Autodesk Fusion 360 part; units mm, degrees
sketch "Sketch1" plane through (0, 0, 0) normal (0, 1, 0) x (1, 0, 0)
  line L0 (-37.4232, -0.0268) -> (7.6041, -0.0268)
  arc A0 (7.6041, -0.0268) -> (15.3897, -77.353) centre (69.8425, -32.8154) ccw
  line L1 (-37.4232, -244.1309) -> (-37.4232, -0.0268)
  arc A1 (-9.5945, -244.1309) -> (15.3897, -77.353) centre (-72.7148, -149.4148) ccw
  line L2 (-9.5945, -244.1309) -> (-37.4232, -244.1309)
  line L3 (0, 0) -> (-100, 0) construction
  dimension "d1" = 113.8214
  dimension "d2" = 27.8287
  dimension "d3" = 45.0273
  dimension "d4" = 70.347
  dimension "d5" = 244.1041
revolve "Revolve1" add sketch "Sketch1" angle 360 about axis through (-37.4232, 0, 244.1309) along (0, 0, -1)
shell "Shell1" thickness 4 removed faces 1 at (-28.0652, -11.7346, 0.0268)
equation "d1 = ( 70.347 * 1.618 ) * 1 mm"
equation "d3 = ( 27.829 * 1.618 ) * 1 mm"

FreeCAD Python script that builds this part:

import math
import FreeCAD as App
import Part
import Sketcher

V = App.Vector
Q = App.Units.Quantity


def faces_at(feature, points):
    """Names of the faces that lie closest to the given points."""
    faces = feature.Shape.Faces
    near = lambda p: min(range(len(faces)), key=lambda i: faces[i].distToShape(Part.Vertex(*p))[0])
    return sorted({f"Face{near(p) + 1}" for p in points})

doc = App.newDocument("Part")
params = doc.addObject("Spreadsheet::Sheet", "Params")
for row, (alias, value) in enumerate([
    ("revolution_angle", "360 deg"),
    ("thickness_wall", "4 mm"),
], start=1):
    params.set(f"A{row}", alias)
    params.set(f"B{row}", "=" + value)
    params.setAlias(f"B{row}", alias)

body = doc.addObject("PartDesign::Body", "Body")

sketch1 = body.newObject("Sketcher::SketchObject", "Sketch")
sketch1.AttachmentSupport = (doc.getObject("XZ_Plane"), [""])
sketch1.MapMode = "FlatFace"
sketch1.addGeometry(Part.LineSegment(V(8, 0, 0), V(-37, 0, 0)), False)
sketch1.addGeometry(Part.LineSegment(V(-37, 0, 0), V(-37, 244, 0)), False)
sketch1.addGeometry(Part.LineSegment(V(-37, 244, 0), V(-10, 244, 0)), False)
sketch1.addGeometry(Part.ArcOfCircle(Part.Circle(V(-73, 149, 0), V(0, 0, 1), 114), math.radians(-39), math.radians(56)), False)
sketch1.addGeometry(Part.ArcOfCircle(Part.Circle(V(70, 33, 0), V(0, 0, 1), 70), math.radians(141), math.radians(208)), False)
sketch1.addGeometry(Part.LineSegment(V(-37, 244, 0), V(-37, 0, 0)), True)
sketch1.addConstraint(Sketcher.Constraint("Coincident", 0, 2, 1, 1))
sketch1.addConstraint(Sketcher.Constraint("Coincident", 1, 2, 2, 1))
sketch1.addConstraint(Sketcher.Constraint("Coincident", 2, 2, 3, 2))
sketch1.addConstraint(Sketcher.Constraint("Tangent", 3, 1, 4, 1))
sketch1.addConstraint(Sketcher.Constraint("Coincident", 4, 2, 0, 1))
sketch1.addConstraint(Sketcher.Constraint("Horizontal", 0))
sketch1.addConstraint(Sketcher.Constraint("Vertical", 1))
sketch1.addConstraint(Sketcher.Constraint("Horizontal", 2))
sketch1.addConstraint(Sketcher.Constraint("Vertical", 5))
sketch1.addConstraint(Sketcher.Constraint("Coincident", 5, 1, 1, 2))
sketch1.addConstraint(Sketcher.Constraint("Horizontal", 4, 2, 5, 2))
sketch1.addConstraint(Sketcher.Constraint("Radius", 4, Q("70.347 mm")))
sketch1.addConstraint(Sketcher.Constraint("Radius", 3, Q("113.8214 mm")))
sketch1.addConstraint(Sketcher.Constraint("DistanceY", 1, 1, 1, 2, Q("244.104 mm")))
sketch1.addConstraint(Sketcher.Constraint("DistanceX", 0, 2, 0, 1, Q("45.0273 mm")))
sketch1.addConstraint(Sketcher.Constraint("DistanceX", 2, 1, 2, 2, Q("27.8287 mm")))
sketch1.addConstraint(Sketcher.Constraint("DistanceY", -1, 1, 1, 2, Q("244.131 mm")))
sketch1.addConstraint(Sketcher.Constraint("DistanceY", -1, 1, 3, 1, Q("77.353 mm")))
sketch1.addConstraint(Sketcher.Constraint("DistanceX", -1, 1, 4, 2, Q("7.604 mm")))
revolution = body.newObject("PartDesign::Revolution", "Revolution")
revolution.Profile = sketch1
revolution.ReferenceAxis = (sketch1, ["Axis0"])
revolution.setExpression("Angle", "Params.revolution_angle")
doc.recompute()

thickness = body.newObject("PartDesign::Thickness", "Thickness")
thickness.Base = (revolution, faces_at(revolution, [(-28.065, -11.735, 0.027)]))
thickness.setExpression("Value", "Params.thickness_wall")
thickness.Reversed = True
thickness.Join = "Intersection"

doc.recompute()
